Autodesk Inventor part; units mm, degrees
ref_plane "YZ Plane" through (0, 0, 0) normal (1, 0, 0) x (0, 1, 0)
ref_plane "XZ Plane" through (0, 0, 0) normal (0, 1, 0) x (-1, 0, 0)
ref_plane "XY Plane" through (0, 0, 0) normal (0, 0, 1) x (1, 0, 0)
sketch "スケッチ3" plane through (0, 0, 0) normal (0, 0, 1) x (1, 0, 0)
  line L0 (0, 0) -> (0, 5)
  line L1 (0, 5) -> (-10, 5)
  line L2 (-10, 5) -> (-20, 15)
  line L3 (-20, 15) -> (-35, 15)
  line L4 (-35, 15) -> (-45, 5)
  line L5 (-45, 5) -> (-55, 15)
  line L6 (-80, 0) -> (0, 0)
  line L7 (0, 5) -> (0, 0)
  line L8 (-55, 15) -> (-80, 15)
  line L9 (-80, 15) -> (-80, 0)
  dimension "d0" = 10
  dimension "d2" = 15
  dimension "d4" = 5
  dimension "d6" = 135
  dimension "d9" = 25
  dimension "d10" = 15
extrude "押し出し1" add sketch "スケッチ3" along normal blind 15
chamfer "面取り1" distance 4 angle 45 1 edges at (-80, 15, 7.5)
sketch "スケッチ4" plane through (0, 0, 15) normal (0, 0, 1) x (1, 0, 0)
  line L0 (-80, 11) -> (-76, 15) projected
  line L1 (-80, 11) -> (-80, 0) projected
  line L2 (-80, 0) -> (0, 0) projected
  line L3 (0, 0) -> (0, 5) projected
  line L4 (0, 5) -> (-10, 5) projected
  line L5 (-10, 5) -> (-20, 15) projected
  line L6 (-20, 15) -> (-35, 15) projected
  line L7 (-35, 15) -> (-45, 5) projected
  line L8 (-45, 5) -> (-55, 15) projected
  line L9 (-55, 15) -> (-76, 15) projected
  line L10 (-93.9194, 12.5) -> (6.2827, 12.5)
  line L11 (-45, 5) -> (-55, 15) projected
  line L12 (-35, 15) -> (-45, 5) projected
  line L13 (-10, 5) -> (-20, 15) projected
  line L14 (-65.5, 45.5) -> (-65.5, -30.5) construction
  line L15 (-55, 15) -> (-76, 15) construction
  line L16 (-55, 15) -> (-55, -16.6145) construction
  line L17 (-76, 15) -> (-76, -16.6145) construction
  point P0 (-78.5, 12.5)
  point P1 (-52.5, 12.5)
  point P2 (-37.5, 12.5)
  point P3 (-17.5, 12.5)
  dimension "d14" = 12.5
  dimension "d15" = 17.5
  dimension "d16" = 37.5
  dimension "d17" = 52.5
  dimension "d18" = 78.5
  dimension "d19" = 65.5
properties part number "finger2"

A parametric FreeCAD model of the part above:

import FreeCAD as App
import Part
import Sketcher
from FreeCAD import Vector


def edges_at(feature, points):
    """Names of the edges that pass closest to the given points."""
    edges = feature.Shape.Edges
    near = lambda p: min(range(len(edges)), key=lambda i: edges[i].distToShape(Part.Vertex(*p))[0])
    return sorted({f"Edge{near(p) + 1}" for p in points})

doc = App.newDocument("Part")
body = doc.addObject("PartDesign::Body", "Body")

sketch1 = body.newObject("Sketcher::SketchObject", "Sketch")
sketch1.AttachmentSupport = (doc.getObject("XY_Plane"), [""])
sketch1.MapMode = "FlatFace"
sketch1.addGeometry([
    Part.LineSegment(Vector(-80, 0, 0), Vector(0, 0, 0)),
    Part.LineSegment(Vector(0, 0, 0), Vector(0, 5, 0)),
    Part.LineSegment(Vector(0, 5, 0), Vector(-10, 5, 0)),
    Part.LineSegment(Vector(-10, 5, 0), Vector(-20, 15, 0)),
    Part.LineSegment(Vector(-20, 15, 0), Vector(-35, 15, 0)),
    Part.LineSegment(Vector(-35, 15, 0), Vector(-45, 5, 0)),
    Part.LineSegment(Vector(-45, 5, 0), Vector(-55, 15, 0)),
    Part.LineSegment(Vector(-55, 15, 0), Vector(-80, 15, 0)),
    Part.LineSegment(Vector(-80, 15, 0), Vector(-80, 0, 0)),
], False)
sketch1.addConstraint([
    Sketcher.Constraint("Coincident", 0, 2, 1, 1),
    Sketcher.Constraint("Coincident", 1, 2, 2, 1),
    Sketcher.Constraint("Coincident", 2, 2, 3, 1),
    Sketcher.Constraint("Coincident", 3, 2, 4, 1),
    Sketcher.Constraint("Coincident", 4, 2, 5, 1),
    Sketcher.Constraint("Coincident", 5, 2, 6, 1),
    Sketcher.Constraint("Coincident", 6, 2, 7, 1),
    Sketcher.Constraint("Coincident", 7, 2, 8, 1),
    Sketcher.Constraint("Coincident", 8, 2, 0, 1),
    Sketcher.Constraint("Horizontal", 0),
    Sketcher.Constraint("Vertical", 1),
    Sketcher.Constraint("Horizontal", 2),
    Sketcher.Constraint("Horizontal", 4),
    Sketcher.Constraint("Horizontal", 7),
    Sketcher.Constraint("Vertical", 8),
    Sketcher.Constraint("Coincident", 0, 2, -1, 1),
    Sketcher.Constraint("Perpendicular", 3, 5),
    Sketcher.Constraint("Perpendicular", 5, 6),
    Sketcher.Constraint("Horizontal", 2, 2, 5, 2),
    Sketcher.Constraint("Horizontal", 4, 2, 6, 2),
    Sketcher.Constraint("Equal", 4, 8),
    Sketcher.Constraint("Equal", 3, 5),
    Sketcher.Constraint("DistanceX", 2, 2, 2, 1, 10.0),
    Sketcher.Constraint("DistanceX", 4, 2, 4, 1, 15.0),
    Sketcher.Constraint("DistanceX", 7, 2, 7, 1, 25.0),
    Sketcher.Constraint("DistanceY", 1, 1, 1, 2, 5.0),
])
pad1 = body.newObject("PartDesign::Pad", "Pad")
pad1.Profile = sketch1
pad1.Length = 15
doc.recompute()

chamfer = body.newObject("PartDesign::Chamfer", "Chamfer")
chamfer.Base = (pad1, edges_at(pad1, [(-80, 15, 7.5)]))
chamfer.Size = 4

doc.recompute()
